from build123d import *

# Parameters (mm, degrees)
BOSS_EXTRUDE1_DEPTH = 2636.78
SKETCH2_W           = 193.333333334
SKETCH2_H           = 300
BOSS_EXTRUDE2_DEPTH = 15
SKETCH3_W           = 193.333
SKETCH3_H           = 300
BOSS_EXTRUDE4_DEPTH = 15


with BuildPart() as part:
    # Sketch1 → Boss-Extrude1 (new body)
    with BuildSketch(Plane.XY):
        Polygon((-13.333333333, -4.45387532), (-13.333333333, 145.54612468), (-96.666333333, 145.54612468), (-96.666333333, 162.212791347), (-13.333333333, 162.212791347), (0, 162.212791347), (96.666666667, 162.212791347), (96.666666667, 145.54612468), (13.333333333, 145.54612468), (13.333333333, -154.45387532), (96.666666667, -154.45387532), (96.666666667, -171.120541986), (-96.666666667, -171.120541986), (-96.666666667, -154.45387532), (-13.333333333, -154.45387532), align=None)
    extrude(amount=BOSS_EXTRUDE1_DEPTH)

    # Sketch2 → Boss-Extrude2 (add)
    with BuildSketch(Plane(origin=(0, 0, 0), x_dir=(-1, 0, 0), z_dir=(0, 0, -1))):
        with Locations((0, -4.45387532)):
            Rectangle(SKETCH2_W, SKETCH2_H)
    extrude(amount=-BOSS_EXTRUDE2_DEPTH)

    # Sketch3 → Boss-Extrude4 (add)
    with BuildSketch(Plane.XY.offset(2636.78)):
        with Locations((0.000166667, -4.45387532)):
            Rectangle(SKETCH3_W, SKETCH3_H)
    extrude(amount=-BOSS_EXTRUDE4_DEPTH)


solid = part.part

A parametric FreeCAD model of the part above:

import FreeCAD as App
import Part
import Sketcher
from FreeCAD import Vector
Q = App.Units.Quantity


def add_polygon(sketch, points):
    """Adds a closed chain of lines whose ends are joined by coincident constraints."""
    first, n = sketch.GeometryCount, len(points)
    for a, b in zip(points, points[1:] + points[:1]):
        sketch.addGeometry(Part.LineSegment(App.Vector(*a, 0), App.Vector(*b, 0)), False)
    for i in range(n):
        sketch.addConstraint(Sketcher.Constraint("Coincident", first + i, 2, first + (i + 1) % n, 1))

doc = App.newDocument("Part")
params = doc.addObject("Spreadsheet::Sheet", "Params")
for row, (alias, value) in enumerate([
    ("sketch1_height", "300 mm"),
    ("pad1_length", "2636.78 mm"),
    ("sketch2_height", "300 mm"),
    ("pad2_length", "15 mm"),
    ("sketch3_height", "300 mm"),
    ("pad3_length", "15 mm"),
], start=1):
    params.set(f"A{row}", alias)
    params.set(f"B{row}", "=" + value)
    params.setAlias(f"B{row}", alias)

body = doc.addObject("PartDesign::Body", "Body")

sketch1 = body.newObject("Sketcher::SketchObject", "Sketch")
sketch1.AttachmentSupport = (doc.getObject("XY_Plane"), [""])
sketch1.MapMode = "FlatFace"
add_polygon(sketch1, [(-13, 146), (-13, -154), (-97, -154), (-97, -171), (97, -171), (97, -154), (13, -154), (13, 146), (97, 146), (97, 162), (-97, 162), (-97, 146)])
sketch1.addConstraint([
    Sketcher.Constraint("Vertical", 0),
    Sketcher.Constraint("Horizontal", 1),
    Sketcher.Constraint("Vertical", 2),
    Sketcher.Constraint("Horizontal", 3),
    Sketcher.Constraint("Vertical", 4),
    Sketcher.Constraint("Horizontal", 5),
    Sketcher.Constraint("Vertical", 6),
    Sketcher.Constraint("Horizontal", 7),
    Sketcher.Constraint("Vertical", 8),
    Sketcher.Constraint("Horizontal", 9),
    Sketcher.Constraint("Vertical", 10),
    Sketcher.Constraint("Horizontal", 11),
    Sketcher.Constraint("Symmetric", 1, 2, 4, 2, -2),
    Sketcher.Constraint("Symmetric", 6, 2, 11, 2, -2),
    Sketcher.Constraint("Vertical", 4, 2, 7, 2),
    Sketcher.Constraint("Equal", 4, 8),
    Sketcher.Constraint("DistanceY", 0, 2, 0, 1, Q("300 mm")),
    Sketcher.Constraint("DistanceX", 0, 2, 3, 2, Q("110 mm")),
    Sketcher.Constraint("DistanceX", 9, 2, 9, 1, Q("193.333 mm")),
    Sketcher.Constraint("DistanceX", 1, 2, 1, 1, Q("83.333333 mm")),
    Sketcher.Constraint("DistanceY", 2, 2, 2, 1, Q("16.666667 mm")),
    Sketcher.Constraint("DistanceY", 2, 2, -1, 1, Q("171.120542 mm")),
])
sketch1.setExpression("Constraints[28]", "Params.sketch1_height")
pad1 = body.newObject("PartDesign::Pad", "Pad")
pad1.Profile = sketch1
pad1.setExpression("Length", "Params.pad1_length")

sketch2 = body.newObject("Sketcher::SketchObject", "Sketch001")
sketch2.AttachmentSupport = (doc.getObject("XY_Plane"), [""])
sketch2.MapMode = "FlatFace"
add_polygon(sketch2, [(97, 146), (97, -154), (-97, -154), (-97, 146)])
sketch2.addConstraint([
    Sketcher.Constraint("Vertical", 0),
    Sketcher.Constraint("Horizontal", 1),
    Sketcher.Constraint("Vertical", 2),
    Sketcher.Constraint("Horizontal", 3),
    Sketcher.Constraint("DistanceY", 0, 2, 0, 1, Q("300 mm")),
    Sketcher.Constraint("DistanceX", 1, 2, 1, 1, Q("193.333333 mm")),
    Sketcher.Constraint("DistanceX", -1, 1, 0, 2, Q("96.666667 mm")),
    Sketcher.Constraint("DistanceY", 0, 2, -1, 1, Q("154.453875 mm")),
])
sketch2.setExpression("Constraints[8]", "Params.sketch2_height")
pad2 = body.newObject("PartDesign::Pad", "Pad001")
pad2.Profile = sketch2
pad2.setExpression("Length", "Params.pad2_length")

sketch3 = body.newObject("Sketcher::SketchObject", "Sketch002")
sketch3.AttachmentSupport = (doc.getObject("XY_Plane"), [""])
sketch3.MapMode = "FlatFace"
sketch3.AttachmentOffset = App.Placement(Vector(0, 0, 2636.78), App.Rotation())
add_polygon(sketch3, [(-97, 146), (-97, -154), (97, -154), (97, 146)])
sketch3.addConstraint([
    Sketcher.Constraint("Vertical", 0),
    Sketcher.Constraint("Horizontal", 1),
    Sketcher.Constraint("Vertical", 2),
    Sketcher.Constraint("Horizontal", 3),
    Sketcher.Constraint("DistanceY", 0, 2, 0, 1, Q("300 mm")),
    Sketcher.Constraint("DistanceX", 1, 1, 1, 2, Q("193.333 mm")),
    Sketcher.Constraint("DistanceX", 0, 2, -1, 1, Q("96.666333 mm")),
    Sketcher.Constraint("DistanceY", 0, 2, -1, 1, Q("154.453875 mm")),
])
sketch3.setExpression("Constraints[8]", "Params.sketch3_height")
pad3 = body.newObject("PartDesign::Pad", "Pad002")
pad3.Profile = sketch3
pad3.setExpression("Length", "Params.pad3_length")
pad3.Reversed = True

doc.recompute()
